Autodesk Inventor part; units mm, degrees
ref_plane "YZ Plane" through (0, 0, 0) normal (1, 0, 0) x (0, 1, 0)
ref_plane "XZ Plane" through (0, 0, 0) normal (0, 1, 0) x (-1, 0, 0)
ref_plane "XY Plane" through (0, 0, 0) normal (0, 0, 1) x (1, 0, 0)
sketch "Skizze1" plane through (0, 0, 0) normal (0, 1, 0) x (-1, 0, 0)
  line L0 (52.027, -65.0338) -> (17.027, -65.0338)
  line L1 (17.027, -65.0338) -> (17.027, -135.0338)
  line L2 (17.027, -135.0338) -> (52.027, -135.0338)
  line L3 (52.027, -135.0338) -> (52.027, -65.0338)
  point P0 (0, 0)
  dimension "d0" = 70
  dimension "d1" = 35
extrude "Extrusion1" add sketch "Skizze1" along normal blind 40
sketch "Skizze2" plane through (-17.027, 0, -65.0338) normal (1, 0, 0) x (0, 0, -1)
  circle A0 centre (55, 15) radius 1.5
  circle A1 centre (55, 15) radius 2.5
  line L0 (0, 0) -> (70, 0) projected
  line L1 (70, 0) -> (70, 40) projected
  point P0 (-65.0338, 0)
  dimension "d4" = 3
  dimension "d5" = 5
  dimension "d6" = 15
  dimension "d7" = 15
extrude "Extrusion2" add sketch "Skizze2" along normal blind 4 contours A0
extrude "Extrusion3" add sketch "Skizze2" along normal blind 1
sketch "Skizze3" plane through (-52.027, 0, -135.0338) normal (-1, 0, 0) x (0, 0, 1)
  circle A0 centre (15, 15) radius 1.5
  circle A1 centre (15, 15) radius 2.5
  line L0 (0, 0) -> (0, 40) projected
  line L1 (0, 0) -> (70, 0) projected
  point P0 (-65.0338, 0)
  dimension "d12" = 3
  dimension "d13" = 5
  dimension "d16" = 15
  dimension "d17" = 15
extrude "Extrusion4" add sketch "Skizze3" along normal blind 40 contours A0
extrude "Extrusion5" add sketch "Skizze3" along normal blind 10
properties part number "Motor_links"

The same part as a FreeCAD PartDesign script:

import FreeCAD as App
import Part
import Sketcher

V = App.Vector
Q = App.Units.Quantity

doc = App.newDocument("Part")
body = doc.addObject("PartDesign::Body", "Body")

sketch1 = doc.addObject("Sketcher::SketchObject", "Sketch")
body.addObject(sketch1)
sketch1.AttachmentSupport = (doc.XZ_Plane, [""])
sketch1.MapMode = "FlatFace"
sketch1.addGeometry([
    Part.LineSegment(V(-52, -135, 0), V(-52, -65, 0)),
    Part.LineSegment(V(-52, -65, 0), V(-17, -65, 0)),
    Part.LineSegment(V(-17, -65, 0), V(-17, -135, 0)),
    Part.LineSegment(V(-17, -135, 0), V(-52, -135, 0)),
], False)
sketch1.addConstraint([
    Sketcher.Constraint("Coincident", 0, 2, 1, 1),
    Sketcher.Constraint("Coincident", 1, 2, 2, 1),
    Sketcher.Constraint("Coincident", 2, 2, 3, 1),
    Sketcher.Constraint("Coincident", 3, 2, 0, 1),
    Sketcher.Constraint("Vertical", 0),
    Sketcher.Constraint("Horizontal", 1),
    Sketcher.Constraint("Vertical", 2),
    Sketcher.Constraint("Horizontal", 3),
    Sketcher.Constraint("DistanceX", 1, 1, 1, 2, Q("35 mm")),
    Sketcher.Constraint("DistanceY", 0, 1, 0, 2, Q("70 mm")),
    Sketcher.Constraint("DistanceX", 0, 2, -1, 1, Q("52.027 mm")),
    Sketcher.Constraint("DistanceY", 0, 2, -1, 1, Q("65.0338 mm")),
])
pad1 = doc.addObject("PartDesign::Pad", "Pad")
body.addObject(pad1)
pad1.Profile = sketch1
pad1.Length = 40
pad1.Reversed = True

sketch2 = doc.addObject("Sketcher::SketchObject", "Sketch001")
body.addObject(sketch2)
sketch2.AttachmentSupport = (doc.YZ_Plane, [""])
sketch2.MapMode = "FlatFace"
sketch2.AttachmentOffset = App.Placement(V(0, 0, -17.027), App.Rotation())
sketch2.addGeometry(Part.Circle(V(15, -120, 0), V(0, 0, 1), 1.5), False)
sketch2.addConstraint([
    Sketcher.Constraint("Diameter", 0, Q("3 mm")),
    Sketcher.Constraint("DistanceX", -1, 1, 0, 3, Q("15 mm")),
    Sketcher.Constraint("DistanceY", 0, 3, -1, 1, Q("120.0338 mm")),
])
pad2 = doc.addObject("PartDesign::Pad", "Pad001")
body.addObject(pad2)
pad2.Profile = sketch2
pad2.Length = 4

sketch3 = doc.addObject("Sketcher::SketchObject", "Sketch002")
body.addObject(sketch3)
sketch3.AttachmentSupport = (doc.YZ_Plane, [""])
sketch3.MapMode = "FlatFace"
sketch3.AttachmentOffset = App.Placement(V(0, 0, -17.027), App.Rotation())
sketch3.addGeometry([
    Part.Circle(V(15, -120, 0), V(0, 0, 1), 2.5),
    Part.Circle(V(15, -120, 0), V(0, 0, 1), 1.5),
], False)
sketch3.addConstraint([
    Sketcher.Constraint("Coincident", 1, 3, 0, 3),
    Sketcher.Constraint("Diameter", 0, Q("5 mm")),
    Sketcher.Constraint("Diameter", 1, Q("3 mm")),
    Sketcher.Constraint("DistanceX", -1, 1, 0, 3, Q("15 mm")),
    Sketcher.Constraint("DistanceY", 0, 3, -1, 1, Q("120.0338 mm")),
])
pad3 = doc.addObject("PartDesign::Pad", "Pad002")
body.addObject(pad3)
pad3.Profile = sketch3
pad3.Length = 1

sketch4 = doc.addObject("Sketcher::SketchObject", "Sketch003")
body.addObject(sketch4)
sketch4.AttachmentSupport = (doc.YZ_Plane, [""])
sketch4.MapMode = "FlatFace"
sketch4.AttachmentOffset = App.Placement(V(0, 0, -52.027), App.Rotation())
sketch4.addGeometry(Part.Circle(V(15, -120, 0), V(0, 0, 1), 1.5), False)
sketch4.addConstraint([
    Sketcher.Constraint("Diameter", 0, Q("3 mm")),
    Sketcher.Constraint("DistanceX", -1, 1, 0, 3, Q("15 mm")),
    Sketcher.Constraint("DistanceY", 0, 3, -1, 1, Q("120.0338 mm")),
])
pad4 = doc.addObject("PartDesign::Pad", "Pad003")
body.addObject(pad4)
pad4.Profile = sketch4
pad4.Length = 40
pad4.Reversed = True

sketch5 = doc.addObject("Sketcher::SketchObject", "Sketch004")
body.addObject(sketch5)
sketch5.AttachmentSupport = (doc.YZ_Plane, [""])
sketch5.MapMode = "FlatFace"
sketch5.AttachmentOffset = App.Placement(V(0, 0, -52.027), App.Rotation())
sketch5.addGeometry([
    Part.Circle(V(15, -120, 0), V(0, 0, 1), 2.5),
    Part.Circle(V(15, -120, 0), V(0, 0, 1), 1.5),
], False)
sketch5.addConstraint([
    Sketcher.Constraint("Coincident", 1, 3, 0, 3),
    Sketcher.Constraint("Diameter", 0, Q("5 mm")),
    Sketcher.Constraint("Diameter", 1, Q("3 mm")),
    Sketcher.Constraint("DistanceX", -1, 1, 0, 3, Q("15 mm")),
    Sketcher.Constraint("DistanceY", 0, 3, -1, 1, Q("120.0338 mm")),
])
pad5 = doc.addObject("PartDesign::Pad", "Pad004")
body.addObject(pad5)
pad5.Profile = sketch5
pad5.Length = 10
pad5.Reversed = True

doc.recompute()
